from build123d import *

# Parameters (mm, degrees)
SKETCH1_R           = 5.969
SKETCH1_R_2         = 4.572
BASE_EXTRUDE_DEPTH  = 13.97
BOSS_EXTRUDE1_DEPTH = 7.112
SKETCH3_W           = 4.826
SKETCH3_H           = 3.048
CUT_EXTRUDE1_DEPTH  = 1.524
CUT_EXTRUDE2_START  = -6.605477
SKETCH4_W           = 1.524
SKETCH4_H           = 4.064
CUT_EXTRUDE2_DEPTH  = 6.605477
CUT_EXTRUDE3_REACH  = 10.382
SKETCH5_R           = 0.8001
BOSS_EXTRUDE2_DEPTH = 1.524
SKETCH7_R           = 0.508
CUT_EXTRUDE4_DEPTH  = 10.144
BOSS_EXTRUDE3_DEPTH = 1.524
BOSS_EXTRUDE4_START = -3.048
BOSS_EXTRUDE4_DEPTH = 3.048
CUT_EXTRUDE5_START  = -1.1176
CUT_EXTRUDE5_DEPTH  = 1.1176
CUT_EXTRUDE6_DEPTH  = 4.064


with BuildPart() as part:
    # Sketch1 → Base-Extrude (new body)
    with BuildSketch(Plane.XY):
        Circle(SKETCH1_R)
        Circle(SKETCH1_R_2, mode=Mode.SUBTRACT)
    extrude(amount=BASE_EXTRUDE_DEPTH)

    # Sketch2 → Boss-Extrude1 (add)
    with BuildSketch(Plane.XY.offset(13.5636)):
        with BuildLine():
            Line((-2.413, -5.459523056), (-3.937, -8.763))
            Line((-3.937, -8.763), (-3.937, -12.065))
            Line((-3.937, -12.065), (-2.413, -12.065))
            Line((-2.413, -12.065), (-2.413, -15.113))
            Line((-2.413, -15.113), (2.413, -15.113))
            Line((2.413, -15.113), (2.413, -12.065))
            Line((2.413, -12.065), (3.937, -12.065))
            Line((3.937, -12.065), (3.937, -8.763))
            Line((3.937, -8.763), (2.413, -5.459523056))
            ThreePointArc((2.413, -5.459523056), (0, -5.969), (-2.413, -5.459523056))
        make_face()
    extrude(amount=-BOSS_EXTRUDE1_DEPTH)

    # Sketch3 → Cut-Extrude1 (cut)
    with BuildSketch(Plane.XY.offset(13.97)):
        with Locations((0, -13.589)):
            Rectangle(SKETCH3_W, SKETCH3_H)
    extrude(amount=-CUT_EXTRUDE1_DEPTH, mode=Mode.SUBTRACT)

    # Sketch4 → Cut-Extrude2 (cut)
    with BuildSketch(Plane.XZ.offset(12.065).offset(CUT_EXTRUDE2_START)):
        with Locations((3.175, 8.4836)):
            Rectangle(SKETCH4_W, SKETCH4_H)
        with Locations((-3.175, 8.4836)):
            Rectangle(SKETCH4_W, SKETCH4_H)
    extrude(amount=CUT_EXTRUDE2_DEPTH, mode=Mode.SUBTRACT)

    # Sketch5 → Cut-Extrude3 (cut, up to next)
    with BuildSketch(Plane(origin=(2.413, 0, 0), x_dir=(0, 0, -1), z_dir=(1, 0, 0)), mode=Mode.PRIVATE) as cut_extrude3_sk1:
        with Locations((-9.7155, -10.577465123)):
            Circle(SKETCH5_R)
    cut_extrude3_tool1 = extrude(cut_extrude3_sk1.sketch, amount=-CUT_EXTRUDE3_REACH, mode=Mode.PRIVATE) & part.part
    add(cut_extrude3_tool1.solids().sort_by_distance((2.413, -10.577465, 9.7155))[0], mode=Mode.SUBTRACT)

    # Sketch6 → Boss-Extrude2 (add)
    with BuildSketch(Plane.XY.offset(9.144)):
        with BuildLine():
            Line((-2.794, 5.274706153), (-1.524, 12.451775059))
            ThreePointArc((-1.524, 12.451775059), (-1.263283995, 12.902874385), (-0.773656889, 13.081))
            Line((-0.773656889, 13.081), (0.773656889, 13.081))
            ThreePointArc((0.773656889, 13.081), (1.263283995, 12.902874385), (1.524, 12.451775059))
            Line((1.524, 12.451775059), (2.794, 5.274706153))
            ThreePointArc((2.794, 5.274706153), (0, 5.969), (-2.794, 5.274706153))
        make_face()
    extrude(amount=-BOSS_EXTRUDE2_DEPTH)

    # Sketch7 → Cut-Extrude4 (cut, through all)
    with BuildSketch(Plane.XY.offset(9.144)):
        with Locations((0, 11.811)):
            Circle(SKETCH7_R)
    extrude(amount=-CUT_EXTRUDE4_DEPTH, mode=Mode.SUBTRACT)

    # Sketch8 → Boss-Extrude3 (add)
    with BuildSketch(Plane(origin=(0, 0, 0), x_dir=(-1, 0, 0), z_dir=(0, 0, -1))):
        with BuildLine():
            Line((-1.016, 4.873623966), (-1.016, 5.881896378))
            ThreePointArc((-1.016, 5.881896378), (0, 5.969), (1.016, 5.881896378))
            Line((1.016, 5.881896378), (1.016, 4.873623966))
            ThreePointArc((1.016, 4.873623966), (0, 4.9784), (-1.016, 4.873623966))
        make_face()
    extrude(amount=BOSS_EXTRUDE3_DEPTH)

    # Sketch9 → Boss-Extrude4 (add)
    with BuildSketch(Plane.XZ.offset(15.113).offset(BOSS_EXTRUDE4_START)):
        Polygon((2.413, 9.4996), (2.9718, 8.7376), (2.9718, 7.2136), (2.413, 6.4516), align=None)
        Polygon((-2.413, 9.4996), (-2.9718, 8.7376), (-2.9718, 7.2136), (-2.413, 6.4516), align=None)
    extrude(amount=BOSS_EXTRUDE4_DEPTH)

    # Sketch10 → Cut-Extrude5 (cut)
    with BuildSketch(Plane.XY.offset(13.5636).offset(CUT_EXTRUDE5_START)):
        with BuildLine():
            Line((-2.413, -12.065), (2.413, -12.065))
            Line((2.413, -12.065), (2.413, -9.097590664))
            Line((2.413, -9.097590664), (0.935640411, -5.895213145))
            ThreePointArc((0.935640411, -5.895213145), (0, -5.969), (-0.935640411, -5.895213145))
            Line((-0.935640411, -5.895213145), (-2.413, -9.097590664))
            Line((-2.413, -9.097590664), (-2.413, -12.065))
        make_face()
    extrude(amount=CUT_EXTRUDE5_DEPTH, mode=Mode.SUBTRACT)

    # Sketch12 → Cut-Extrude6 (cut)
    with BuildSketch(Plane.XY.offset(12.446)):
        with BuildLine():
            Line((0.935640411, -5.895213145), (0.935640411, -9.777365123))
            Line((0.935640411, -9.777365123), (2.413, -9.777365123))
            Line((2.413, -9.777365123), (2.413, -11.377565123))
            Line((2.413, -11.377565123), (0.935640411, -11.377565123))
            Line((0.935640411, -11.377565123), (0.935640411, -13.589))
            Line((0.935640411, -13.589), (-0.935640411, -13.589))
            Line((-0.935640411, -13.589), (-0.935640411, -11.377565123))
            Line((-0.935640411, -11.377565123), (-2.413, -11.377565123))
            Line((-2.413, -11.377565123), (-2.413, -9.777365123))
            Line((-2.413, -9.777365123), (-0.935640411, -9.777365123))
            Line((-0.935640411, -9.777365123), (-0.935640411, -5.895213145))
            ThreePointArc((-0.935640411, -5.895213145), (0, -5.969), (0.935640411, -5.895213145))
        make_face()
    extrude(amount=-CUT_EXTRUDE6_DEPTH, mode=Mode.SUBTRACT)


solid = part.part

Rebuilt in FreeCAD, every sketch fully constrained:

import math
import FreeCAD as App
import Part
import Sketcher
Q = App.Units.Quantity

doc = App.newDocument("Part")
params = doc.addObject("Spreadsheet::Sheet", "Params")
for row, (alias, value) in enumerate([
    ("sketch1_diameter", "0.47 in"),
    ("sketch1_diameter2", "0.36 in"),
    ("pad1_length", "0.55 in"),
    ("sketch2_radius", "0.235 in"),
    ("sketch2_width", "0.06 in"),
    ("sketch2_width2", "0.19 in"),
    ("sketch2_height", "0.13 in"),
    ("sketch2_height2", "0.12 in"),
    ("pad2_length", "0.28 in"),
    ("sketch3_width", "0.19 in"),
    ("sketch3_height", "0.12 in"),
    ("pocket1_length", "0.06 in"),
    ("sketch4_width", "0.06 in"),
    ("sketch4_height", "0.16 in"),
    ("pocket2_length", "6.605477 mm"),
    ("sketch5_diameter", "0.063 in"),
    ("sketch6_radius", "0.03 in"),
    ("sketch6_radius2", "0.235 in"),
    ("pad3_length", "0.06 in"),
    ("sketch7_diameter", "0.04 in"),
    ("sketch8_radius", "0.196 in"),
    ("sketch8_radius2", "0.235 in"),
    ("pad4_length", "0.06 in"),
    ("sketch9_height", "0.12 in"),
    ("sketch9_height2", "0.06 in"),
    ("pad5_length", "0.12 in"),
    ("sketch10_radius", "0.235 in"),
    ("sketch10_width", "0.19 in"),
    ("pocket5_length", "0.044 in"),
    ("sketch11_radius", "0.235 in"),
    ("sketch11_height", "0.063 in"),
    ("pocket6_length", "0.16 in"),
], start=1):
    params.set(f"A{row}", alias)
    params.set(f"B{row}", "=" + value)
    params.setAlias(f"B{row}", alias)

body = doc.addObject("PartDesign::Body", "Body")

sketch1 = body.newObject("Sketcher::SketchObject", "Sketch")
sketch1.AttachmentSupport = (doc.getObject("XY_Plane"), [""])
sketch1.MapMode = "FlatFace"
sketch1.addGeometry(Part.Circle(App.Vector(0, 0, 0), App.Vector(0, 0, 1), 5.969), False)
sketch1.addGeometry(Part.Circle(App.Vector(0, 0, 0), App.Vector(0, 0, 1), 4.572), False)
sketch1.addConstraint(Sketcher.Constraint("Coincident", 0, 3, -1, 1))
sketch1.addConstraint(Sketcher.Constraint("Coincident", 1, 3, -1, 1))
sketch1.addConstraint(Sketcher.Constraint("Diameter", 0, Q("0.47 in")))
sketch1.addConstraint(Sketcher.Constraint("Diameter", 1, Q("0.36 in")))
sketch1.setExpression("Constraints[2]", "Params.sketch1_diameter")
sketch1.setExpression("Constraints[3]", "Params.sketch1_diameter2")
pad1 = body.newObject("PartDesign::Pad", "Pad")
pad1.Profile = sketch1
pad1.setExpression("Length", "Params.pad1_length")

sketch2 = body.newObject("Sketcher::SketchObject", "Sketch001")
sketch2.AttachmentSupport = (doc.getObject("XY_Plane"), [""])
sketch2.MapMode = "FlatFace"
sketch2.AttachmentOffset = App.Placement(App.Vector(0, 0, 0.534 * 25.4), App.Rotation())
sketch2.addGeometry(Part.LineSegment(App.Vector(-2.413, -5.459523, 0), App.Vector(-3.937, -8.763, 0)), False)
sketch2.addGeometry(Part.LineSegment(App.Vector(-3.937, -8.763, 0), App.Vector(-3.937, -12.065, 0)), False)
sketch2.addGeometry(Part.LineSegment(App.Vector(-3.937, -12.065, 0), App.Vector(-2.413, -12.065, 0)), False)
sketch2.addGeometry(Part.LineSegment(App.Vector(-2.413, -12.065, 0), App.Vector(-2.413, -15.113, 0)), False)
sketch2.addGeometry(Part.LineSegment(App.Vector(-2.413, -15.113, 0), App.Vector(2.413, -15.113, 0)), False)
sketch2.addGeometry(Part.LineSegment(App.Vector(2.413, -15.113, 0), App.Vector(2.413, -12.065, 0)), False)
sketch2.addGeometry(Part.LineSegment(App.Vector(2.413, -12.065, 0), App.Vector(3.937, -12.065, 0)), False)
sketch2.addGeometry(Part.LineSegment(App.Vector(3.937, -12.065, 0), App.Vector(3.937, -8.763, 0)), False)
sketch2.addGeometry(Part.LineSegment(App.Vector(3.937, -8.763, 0), App.Vector(2.413, -5.459523, 0)), False)
sketch2.addGeometry(Part.ArcOfCircle(Part.Circle(App.Vector(0, 0, 0), App.Vector(0, 0, 1), 5.969), math.radians(-113.84447), math.radians(-66.15553)), False)
sketch2.addConstraint(Sketcher.Constraint("Coincident", 0, 2, 1, 1))
sketch2.addConstraint(Sketcher.Constraint("Coincident", 1, 2, 2, 1))
sketch2.addConstraint(Sketcher.Constraint("Coincident", 2, 2, 3, 1))
sketch2.addConstraint(Sketcher.Constraint("Coincident", 3, 2, 4, 1))
sketch2.addConstraint(Sketcher.Constraint("Coincident", 4, 2, 5, 1))
sketch2.addConstraint(Sketcher.Constraint("Coincident", 5, 2, 6, 1))
sketch2.addConstraint(Sketcher.Constraint("Coincident", 6, 2, 7, 1))
sketch2.addConstraint(Sketcher.Constraint("Coincident", 7, 2, 8, 1))
sketch2.addConstraint(Sketcher.Constraint("Coincident", 8, 2, 9, 2))
sketch2.addConstraint(Sketcher.Constraint("Coincident", 9, 1, 0, 1))
sketch2.addConstraint(Sketcher.Constraint("Vertical", 1))
sketch2.addConstraint(Sketcher.Constraint("Horizontal", 2))
sketch2.addConstraint(Sketcher.Constraint("Vertical", 3))
sketch2.addConstraint(Sketcher.Constraint("Horizontal", 4))
sketch2.addConstraint(Sketcher.Constraint("Vertical", 5))
sketch2.addConstraint(Sketcher.Constraint("Horizontal", 6))
sketch2.addConstraint(Sketcher.Constraint("Vertical", 7))
sketch2.addConstraint(Sketcher.Constraint("Coincident", 9, 3, -1, 1))
sketch2.addConstraint(Sketcher.Constraint("Symmetric", 2, 2, 5, 2, -2))
sketch2.addConstraint(Sketcher.Constraint("Symmetric", 0, 2, 7, 2, -2))
sketch2.addConstraint(Sketcher.Constraint("Horizontal", 8, 2, 9, 1))
sketch2.addConstraint(Sketcher.Constraint("Vertical", 5, 2, 8, 2))
sketch2.addConstraint(Sketcher.Constraint("Radius", 9, Q("0.235 in")))
sketch2.addConstraint(Sketcher.Constraint("DistanceX", 2, 1, 2, 2, Q("0.06 in")))
sketch2.addConstraint(Sketcher.Constraint("DistanceX", 4, 1, 4, 2, Q("0.19 in")))
sketch2.addConstraint(Sketcher.Constraint("DistanceY", 1, 2, 1, 1, Q("0.13 in")))
sketch2.addConstraint(Sketcher.Constraint("DistanceY", 3, 2, 3, 1, Q("0.12 in")))
sketch2.addConstraint(Sketcher.Constraint("DistanceY", 0, 2, -1, 1, Q("0.345 in")))
sketch2.setExpression("Constraints[22]", "Params.sketch2_radius")
sketch2.setExpression("Constraints[23]", "Params.sketch2_width")
sketch2.setExpression("Constraints[24]", "Params.sketch2_width2")
sketch2.setExpression("Constraints[25]", "Params.sketch2_height")
sketch2.setExpression("Constraints[26]", "Params.sketch2_height2")
pad2 = body.newObject("PartDesign::Pad", "Pad001")
pad2.Profile = sketch2
pad2.setExpression("Length", "Params.pad2_length")
pad2.Reversed = True

sketch3 = body.newObject("Sketcher::SketchObject", "Sketch002")
sketch3.AttachmentSupport = (doc.getObject("XY_Plane"), [""])
sketch3.MapMode = "FlatFace"
sketch3.AttachmentOffset = App.Placement(App.Vector(0, 0, 0.55 * 25.4), App.Rotation())
sketch3.addGeometry(Part.LineSegment(App.Vector(-2.413, -12.065, 0), App.Vector(-2.413, -15.113, 0)), False)
sketch3.addGeometry(Part.LineSegment(App.Vector(-2.413, -15.113, 0), App.Vector(2.413, -15.113, 0)), False)
sketch3.addGeometry(Part.LineSegment(App.Vector(2.413, -15.113, 0), App.Vector(2.413, -12.065, 0)), False)
sketch3.addGeometry(Part.LineSegment(App.Vector(2.413, -12.065, 0), App.Vector(-2.413, -12.065, 0)), False)
sketch3.addConstraint(Sketcher.Constraint("Coincident", 0, 2, 1, 1))
sketch3.addConstraint(Sketcher.Constraint("Coincident", 1, 2, 2, 1))
sketch3.addConstraint(Sketcher.Constraint("Coincident", 2, 2, 3, 1))
sketch3.addConstraint(Sketcher.Constraint("Coincident", 3, 2, 0, 1))
sketch3.addConstraint(Sketcher.Constraint("Vertical", 0))
sketch3.addConstraint(Sketcher.Constraint("Horizontal", 1))
sketch3.addConstraint(Sketcher.Constraint("Vertical", 2))
sketch3.addConstraint(Sketcher.Constraint("Horizontal", 3))
sketch3.addConstraint(Sketcher.Constraint("DistanceX", 1, 1, 1, 2, Q("0.19 in")))
sketch3.addConstraint(Sketcher.Constraint("DistanceY", 0, 2, 0, 1, Q("0.12 in")))
sketch3.addConstraint(Sketcher.Constraint("DistanceX", 0, 2, -1, 1, Q("0.095 in")))
sketch3.addConstraint(Sketcher.Constraint("DistanceY", 0, 2, -1, 1, Q("0.595 in")))
sketch3.setExpression("Constraints[8]", "Params.sketch3_width")
sketch3.setExpression("Constraints[9]", "Params.sketch3_height")
pocket1 = body.newObject("PartDesign::Pocket", "Pocket")
pocket1.Profile = sketch3
pocket1.setExpression("Length", "Params.pocket1_length")

sketch4 = body.newObject("Sketcher::SketchObject", "Sketch003")
sketch4.AttachmentSupport = (doc.getObject("XZ_Plane"), [""])
sketch4.MapMode = "FlatFace"
sketch4.AttachmentOffset = App.Placement(App.Vector(0, 0, 5.459523), App.Rotation())
sketch4.addGeometry(Part.LineSegment(App.Vector(2.413, 10.5156, 0), App.Vector(2.413, 6.4516, 0)), False)
sketch4.addGeometry(Part.LineSegment(App.Vector(2.413, 6.4516, 0), App.Vector(3.937, 6.4516, 0)), False)
sketch4.addGeometry(Part.LineSegment(App.Vector(3.937, 6.4516, 0), App.Vector(3.937, 10.5156, 0)), False)
sketch4.addGeometry(Part.LineSegment(App.Vector(3.937, 10.5156, 0), App.Vector(2.413, 10.5156, 0)), False)
sketch4.addGeometry(Part.LineSegment(App.Vector(-3.937, 10.5156, 0), App.Vector(-3.937, 6.4516, 0)), False)
sketch4.addGeometry(Part.LineSegment(App.Vector(-3.937, 6.4516, 0), App.Vector(-2.413, 6.4516, 0)), False)
sketch4.addGeometry(Part.LineSegment(App.Vector(-2.413, 6.4516, 0), App.Vector(-2.413, 10.5156, 0)), False)
sketch4.addGeometry(Part.LineSegment(App.Vector(-2.413, 10.5156, 0), App.Vector(-3.937, 10.5156, 0)), False)
sketch4.addConstraint(Sketcher.Constraint("Coincident", 0, 2, 1, 1))
sketch4.addConstraint(Sketcher.Constraint("Coincident", 1, 2, 2, 1))
sketch4.addConstraint(Sketcher.Constraint("Coincident", 2, 2, 3, 1))
sketch4.addConstraint(Sketcher.Constraint("Coincident", 3, 2, 0, 1))
sketch4.addConstraint(Sketcher.Constraint("Coincident", 4, 2, 5, 1))
sketch4.addConstraint(Sketcher.Constraint("Coincident", 5, 2, 6, 1))
sketch4.addConstraint(Sketcher.Constraint("Coincident", 6, 2, 7, 1))
sketch4.addConstraint(Sketcher.Constraint("Coincident", 7, 2, 4, 1))
sketch4.addConstraint(Sketcher.Constraint("Vertical", 0))
sketch4.addConstraint(Sketcher.Constraint("Horizontal", 1))
sketch4.addConstraint(Sketcher.Constraint("Vertical", 2))
sketch4.addConstraint(Sketcher.Constraint("Horizontal", 3))
sketch4.addConstraint(Sketcher.Constraint("Vertical", 4))
sketch4.addConstraint(Sketcher.Constraint("Horizontal", 5))
sketch4.addConstraint(Sketcher.Constraint("Vertical", 6))
sketch4.addConstraint(Sketcher.Constraint("Horizontal", 7))
sketch4.addConstraint(Sketcher.Constraint("Symmetric", 1, 2, 4, 2, -2))
sketch4.addConstraint(Sketcher.Constraint("Symmetric", 3, 2, 6, 2, -2))
sketch4.addConstraint(Sketcher.Constraint("DistanceX", 1, 1, 1, 2, Q("0.06 in")))
sketch4.addConstraint(Sketcher.Constraint("DistanceY", 0, 2, 0, 1, Q("0.16 in")))
sketch4.addConstraint(Sketcher.Constraint("DistanceX", 4, 2, 0, 2, Q("0.25 in")))
sketch4.addConstraint(Sketcher.Constraint("DistanceY", -1, 1, 0, 2, Q("0.254 in")))
sketch4.setExpression("Constraints[18]", "Params.sketch4_width")
sketch4.setExpression("Constraints[19]", "Params.sketch4_height")
pocket2 = body.newObject("PartDesign::Pocket", "Pocket001")
pocket2.Profile = sketch4
pocket2.setExpression("Length", "Params.pocket2_length")
pocket2.Reversed = True

sketch5 = body.newObject("Sketcher::SketchObject", "Sketch004")
sketch5.AttachmentSupport = (doc.getObject("YZ_Plane"), [""])
sketch5.MapMode = "FlatFace"
sketch5.AttachmentOffset = App.Placement(App.Vector(0, 0, 0.095 * 25.4), App.Rotation())
sketch5.addGeometry(Part.Circle(App.Vector(-10.577465, 9.7155, 0), App.Vector(0, 0, 1), 0.8001), False)
sketch5.addConstraint(Sketcher.Constraint("Diameter", 0, Q("0.063 in")))
sketch5.addConstraint(Sketcher.Constraint("DistanceY", -1, 1, 0, 3, Q("0.3825 in")))
sketch5.addConstraint(Sketcher.Constraint("DistanceX", 0, 3, -1, 1, 10.577465))
sketch5.setExpression("Constraints[0]", "Params.sketch5_diameter")
pocket3 = body.newObject("PartDesign::Pocket", "Pocket002")
pocket3.Profile = sketch5
pocket3.Type = "UpToFirst"

sketch6 = body.newObject("Sketcher::SketchObject", "Sketch005")
sketch6.AttachmentSupport = (doc.getObject("XY_Plane"), [""])
sketch6.MapMode = "FlatFace"
sketch6.AttachmentOffset = App.Placement(App.Vector(0, 0, 0.36 * 25.4), App.Rotation())
sketch6.addGeometry(Part.LineSegment(App.Vector(-1.524, 12.451775, 0), App.Vector(-2.794, 5.274706, 0)), False)
sketch6.addGeometry(Part.ArcOfCircle(Part.Circle(App.Vector(0, 0, 0), App.Vector(0, 0, 1), 5.969), math.radians(62.089932), math.radians(117.910068)), False)
sketch6.addGeometry(Part.LineSegment(App.Vector(2.794, 5.274706, 0), App.Vector(1.524, 12.451775, 0)), False)
sketch6.addGeometry(Part.ArcOfCircle(Part.Circle(App.Vector(0.773657, 12.319, 0), App.Vector(0, 0, 1), 0.762), math.radians(10.034753), math.radians(90)), False)
sketch6.addGeometry(Part.LineSegment(App.Vector(0.773657, 13.081, 0), App.Vector(-0.773657, 13.081, 0)), False)
sketch6.addGeometry(Part.ArcOfCircle(Part.Circle(App.Vector(-0.773657, 12.319, 0), App.Vector(0, 0, 1), 0.762), math.radians(90), math.radians(169.965247)), False)
sketch6.addConstraint(Sketcher.Constraint("Coincident", 0, 2, 1, 2))
sketch6.addConstraint(Sketcher.Constraint("Coincident", 1, 1, 2, 1))
sketch6.addConstraint(Sketcher.Constraint("Tangent", 2, 2, 3, 1))
sketch6.addConstraint(Sketcher.Constraint("Tangent", 3, 2, 4, 1))
sketch6.addConstraint(Sketcher.Constraint("Tangent", 4, 2, 5, 1))
sketch6.addConstraint(Sketcher.Constraint("Tangent", 5, 2, 0, 1))
sketch6.addConstraint(Sketcher.Constraint("Horizontal", 4))
sketch6.addConstraint(Sketcher.Constraint("Coincident", 1, 3, -1, 1))
sketch6.addConstraint(Sketcher.Constraint("Equal", 3, 5))
sketch6.addConstraint(Sketcher.Constraint("Symmetric", 2, 2, 5, 2, -2))
sketch6.addConstraint(Sketcher.Constraint("Radius", 3, Q("0.03 in")))
sketch6.addConstraint(Sketcher.Constraint("Radius", 1, Q("0.235 in")))
sketch6.addConstraint(Sketcher.Constraint("DistanceX", 0, 2, -1, 1, Q("0.11 in")))
sketch6.addConstraint(Sketcher.Constraint("DistanceX", -1, 1, 2, 2, Q("0.06 in")))
sketch6.addConstraint(Sketcher.Constraint("DistanceY", -1, 1, 3, 3, Q("0.485 in")))
sketch6.setExpression("Constraints[10]", "Params.sketch6_radius")
sketch6.setExpression("Constraints[11]", "Params.sketch6_radius2")
pad3 = body.newObject("PartDesign::Pad", "Pad002")
pad3.Profile = sketch6
pad3.setExpression("Length", "Params.pad3_length")
pad3.Reversed = True

sketch7 = body.newObject("Sketcher::SketchObject", "Sketch006")
sketch7.AttachmentSupport = (doc.getObject("XY_Plane"), [""])
sketch7.MapMode = "FlatFace"
sketch7.AttachmentOffset = App.Placement(App.Vector(0, 0, 0.36 * 25.4), App.Rotation())
sketch7.addGeometry(Part.Circle(App.Vector(0, 11.811, 0), App.Vector(0, 0, 1), 0.508), False)
sketch7.addConstraint(Sketcher.Constraint("PointOnObject", 0, 3, -2))
sketch7.addConstraint(Sketcher.Constraint("Diameter", 0, Q("0.04 in")))
sketch7.addConstraint(Sketcher.Constraint("DistanceY", -1, 1, 0, 3, Q("0.465 in")))
sketch7.setExpression("Constraints[1]", "Params.sketch7_diameter")
pocket4 = body.newObject("PartDesign::Pocket", "Pocket003")
pocket4.Profile = sketch7
pocket4.Type = "ThroughAll"

sketch8 = body.newObject("Sketcher::SketchObject", "Sketch007")
sketch8.AttachmentSupport = (doc.getObject("XY_Plane"), [""])
sketch8.MapMode = "FlatFace"
sketch8.addGeometry(Part.LineSegment(App.Vector(1.016, 5.881896, 0), App.Vector(1.016, 4.873624, 0)), False)
sketch8.addGeometry(Part.ArcOfCircle(Part.Circle(App.Vector(0, 0, 0), App.Vector(0, 0, 1), 4.9784), math.radians(78.224256), math.radians(101.775744)), False)
sketch8.addGeometry(Part.LineSegment(App.Vector(-1.016, 4.873624, 0), App.Vector(-1.016, 5.881896, 0)), False)
sketch8.addGeometry(Part.ArcOfCircle(Part.Circle(App.Vector(0, 0, 0), App.Vector(0, 0, 1), 5.969), math.radians(80.19981), math.radians(99.80019)), False)
sketch8.addConstraint(Sketcher.Constraint("Coincident", 0, 2, 1, 1))
sketch8.addConstraint(Sketcher.Constraint("Coincident", 1, 2, 2, 1))
sketch8.addConstraint(Sketcher.Constraint("Coincident", 2, 2, 3, 2))
sketch8.addConstraint(Sketcher.Constraint("Coincident", 3, 1, 0, 1))
sketch8.addConstraint(Sketcher.Constraint("Vertical", 0))
sketch8.addConstraint(Sketcher.Constraint("Vertical", 2))
sketch8.addConstraint(Sketcher.Constraint("Coincident", 1, 3, -1, 1))
sketch8.addConstraint(Sketcher.Constraint("Coincident", 3, 3, -1, 1))
sketch8.addConstraint(Sketcher.Constraint("Horizontal", 0, 2, 1, 2))
sketch8.addConstraint(Sketcher.Constraint("Radius", 1, Q("0.196 in")))
sketch8.addConstraint(Sketcher.Constraint("Radius", 3, Q("0.235 in")))
sketch8.addConstraint(Sketcher.Constraint("DistanceX", -1, 1, 0, 2, Q("0.04 in")))
sketch8.setExpression("Constraints[9]", "Params.sketch8_radius")
sketch8.setExpression("Constraints[10]", "Params.sketch8_radius2")
pad4 = body.newObject("PartDesign::Pad", "Pad003")
pad4.Profile = sketch8
pad4.setExpression("Length", "Params.pad4_length")
pad4.Reversed = True

sketch9 = body.newObject("Sketcher::SketchObject", "Sketch008")
sketch9.AttachmentSupport = (doc.getObject("XZ_Plane"), [""])
sketch9.MapMode = "FlatFace"
sketch9.AttachmentOffset = App.Placement(App.Vector(0, 0, 0.475 * 25.4), App.Rotation())
sketch9.addGeometry(Part.LineSegment(App.Vector(2.9718, 8.7376, 0), App.Vector(2.413, 9.4996, 0)), False)
sketch9.addGeometry(Part.LineSegment(App.Vector(2.413, 9.4996, 0), App.Vector(2.413, 6.4516, 0)), False)
sketch9.addGeometry(Part.LineSegment(App.Vector(2.413, 6.4516, 0), App.Vector(2.9718, 7.2136, 0)), False)
sketch9.addGeometry(Part.LineSegment(App.Vector(2.9718, 7.2136, 0), App.Vector(2.9718, 8.7376, 0)), False)
sketch9.addGeometry(Part.LineSegment(App.Vector(-2.413, 9.4996, 0), App.Vector(-2.9718, 8.7376, 0)), False)
sketch9.addGeometry(Part.LineSegment(App.Vector(-2.9718, 8.7376, 0), App.Vector(-2.9718, 7.2136, 0)), False)
sketch9.addGeometry(Part.LineSegment(App.Vector(-2.9718, 7.2136, 0), App.Vector(-2.413, 6.4516, 0)), False)
sketch9.addGeometry(Part.LineSegment(App.Vector(-2.413, 6.4516, 0), App.Vector(-2.413, 9.4996, 0)), False)
sketch9.addConstraint(Sketcher.Constraint("Coincident", 0, 2, 1, 1))
sketch9.addConstraint(Sketcher.Constraint("Coincident", 1, 2, 2, 1))
sketch9.addConstraint(Sketcher.Constraint("Coincident", 2, 2, 3, 1))
sketch9.addConstraint(Sketcher.Constraint("Coincident", 3, 2, 0, 1))
sketch9.addConstraint(Sketcher.Constraint("Coincident", 4, 2, 5, 1))
sketch9.addConstraint(Sketcher.Constraint("Coincident", 5, 2, 6, 1))
sketch9.addConstraint(Sketcher.Constraint("Coincident", 6, 2, 7, 1))
sketch9.addConstraint(Sketcher.Constraint("Coincident", 7, 2, 4, 1))
sketch9.addConstraint(Sketcher.Constraint("Vertical", 1))
sketch9.addConstraint(Sketcher.Constraint("Vertical", 3))
sketch9.addConstraint(Sketcher.Constraint("Vertical", 5))
sketch9.addConstraint(Sketcher.Constraint("Vertical", 7))
sketch9.addConstraint(Sketcher.Constraint("Symmetric", 3, 2, 4, 2, -2))
sketch9.addConstraint(Sketcher.Constraint("Symmetric", 1, 2, 6, 2, -2))
sketch9.addConstraint(Sketcher.Constraint("Parallel", 2, 4))
sketch9.addConstraint(Sketcher.Constraint("Parallel", 0, 6))
sketch9.addConstraint(Sketcher.Constraint("Horizontal", 2, 2, 5, 2))
sketch9.addConstraint(Sketcher.Constraint("DistanceY", 1, 2, 1, 1, Q("0.12 in")))
sketch9.addConstraint(Sketcher.Constraint("DistanceY", 3, 1, 3, 2, Q("0.06 in")))
sketch9.addConstraint(Sketcher.Constraint("DistanceX", 6, 2, 1, 2, Q("0.19 in")))
sketch9.addConstraint(Sketcher.Constraint("DistanceY", -1, 1, 0, 2, Q("0.374 in")))
sketch9.addConstraint(Sketcher.Constraint("DistanceX", -1, 1, 2, 2, Q("0.117 in")))
sketch9.setExpression("Constraints[17]", "Params.sketch9_height")
sketch9.setExpression("Constraints[18]", "Params.sketch9_height2")
pad5 = body.newObject("PartDesign::Pad", "Pad004")
pad5.Profile = sketch9
pad5.setExpression("Length", "Params.pad5_length")

sketch10 = body.newObject("Sketcher::SketchObject", "Sketch009")
sketch10.AttachmentSupport = (doc.getObject("XY_Plane"), [""])
sketch10.MapMode = "FlatFace"
sketch10.AttachmentOffset = App.Placement(App.Vector(0, 0, 0.49 * 25.4), App.Rotation())
sketch10.addGeometry(Part.LineSegment(App.Vector(-2.413, -12.065, 0), App.Vector(2.413, -12.065, 0)), False)
sketch10.addGeometry(Part.LineSegment(App.Vector(2.413, -12.065, 0), App.Vector(2.413, -9.097591, 0)), False)
sketch10.addGeometry(Part.LineSegment(App.Vector(2.413, -9.097591, 0), App.Vector(0.93564, -5.895213, 0)), False)
sketch10.addGeometry(Part.ArcOfCircle(Part.Circle(App.Vector(0, 0, 0), App.Vector(0, 0, 1), 5.969), math.radians(-99.018301), math.radians(-80.981699)), False)
sketch10.addGeometry(Part.LineSegment(App.Vector(-0.93564, -5.895213, 0), App.Vector(-2.413, -9.097591, 0)), False)
sketch10.addGeometry(Part.LineSegment(App.Vector(-2.413, -9.097591, 0), App.Vector(-2.413, -12.065, 0)), False)
sketch10.addConstraint(Sketcher.Constraint("Coincident", 0, 2, 1, 1))
sketch10.addConstraint(Sketcher.Constraint("Coincident", 1, 2, 2, 1))
sketch10.addConstraint(Sketcher.Constraint("Coincident", 2, 2, 3, 2))
sketch10.addConstraint(Sketcher.Constraint("Coincident", 3, 1, 4, 1))
sketch10.addConstraint(Sketcher.Constraint("Coincident", 4, 2, 5, 1))
sketch10.addConstraint(Sketcher.Constraint("Coincident", 5, 2, 0, 1))
sketch10.addConstraint(Sketcher.Constraint("Horizontal", 0))
sketch10.addConstraint(Sketcher.Constraint("Vertical", 1))
sketch10.addConstraint(Sketcher.Constraint("Vertical", 5))
sketch10.addConstraint(Sketcher.Constraint("Coincident", 3, 3, -1, 1))
sketch10.addConstraint(Sketcher.Constraint("Symmetric", 1, 2, 4, 2, -2))
sketch10.addConstraint(Sketcher.Constraint("Horizontal", 2, 2, 3, 1))
sketch10.addConstraint(Sketcher.Constraint("Radius", 3, Q("0.235 in")))
sketch10.addConstraint(Sketcher.Constraint("DistanceX", 0, 1, 0, 2, Q("0.19 in")))
sketch10.addConstraint(Sketcher.Constraint("DistanceY", 0, 2, -1, 1, Q("0.475 in")))
sketch10.addConstraint(Sketcher.Constraint("DistanceY", 1, 1, 1, 2, 2.967409))
sketch10.addConstraint(Sketcher.Constraint("Distance", 2, 3.526728))
sketch10.setExpression("Constraints[12]", "Params.sketch10_radius")
sketch10.setExpression("Constraints[13]", "Params.sketch10_width")
pocket5 = body.newObject("PartDesign::Pocket", "Pocket004")
pocket5.Profile = sketch10
pocket5.setExpression("Length", "Params.pocket5_length")
pocket5.Reversed = True

sketch11 = body.newObject("Sketcher::SketchObject", "Sketch010")
sketch11.AttachmentSupport = (doc.getObject("XY_Plane"), [""])
sketch11.MapMode = "FlatFace"
sketch11.AttachmentOffset = App.Placement(App.Vector(0, 0, 0.49 * 25.4), App.Rotation())
sketch11.addGeometry(Part.LineSegment(App.Vector(0.93564, -9.777365, 0), App.Vector(0.93564, -5.895213, 0)), False)
sketch11.addGeometry(Part.ArcOfCircle(Part.Circle(App.Vector(0, 0, 0), App.Vector(0, 0, 1), 5.969), math.radians(-99.018301), math.radians(-80.981699)), False)
sketch11.addGeometry(Part.LineSegment(App.Vector(-0.93564, -5.895213, 0), App.Vector(-0.93564, -9.777365, 0)), False)
sketch11.addGeometry(Part.LineSegment(App.Vector(-0.93564, -9.777365, 0), App.Vector(-2.413, -9.777365, 0)), False)
sketch11.addGeometry(Part.LineSegment(App.Vector(-2.413, -9.777365, 0), App.Vector(-2.413, -11.377565, 0)), False)
sketch11.addGeometry(Part.LineSegment(App.Vector(-2.413, -11.377565, 0), App.Vector(-0.93564, -11.377565, 0)), False)
sketch11.addGeometry(Part.LineSegment(App.Vector(-0.93564, -11.377565, 0), App.Vector(-0.93564, -13.589, 0)), False)
sketch11.addGeometry(Part.LineSegment(App.Vector(-0.93564, -13.589, 0), App.Vector(0.93564, -13.589, 0)), False)
sketch11.addGeometry(Part.LineSegment(App.Vector(0.93564, -13.589, 0), App.Vector(0.93564, -11.377565, 0)), False)
sketch11.addGeometry(Part.LineSegment(App.Vector(0.93564, -11.377565, 0), App.Vector(2.413, -11.377565, 0)), False)
sketch11.addGeometry(Part.LineSegment(App.Vector(2.413, -11.377565, 0), App.Vector(2.413, -9.777365, 0)), False)
sketch11.addGeometry(Part.LineSegment(App.Vector(2.413, -9.777365, 0), App.Vector(0.93564, -9.777365, 0)), False)
sketch11.addConstraint(Sketcher.Constraint("Coincident", 0, 2, 1, 2))
sketch11.addConstraint(Sketcher.Constraint("Coincident", 1, 1, 2, 1))
sketch11.addConstraint(Sketcher.Constraint("Coincident", 2, 2, 3, 1))
sketch11.addConstraint(Sketcher.Constraint("Coincident", 3, 2, 4, 1))
sketch11.addConstraint(Sketcher.Constraint("Coincident", 4, 2, 5, 1))
sketch11.addConstraint(Sketcher.Constraint("Coincident", 5, 2, 6, 1))
sketch11.addConstraint(Sketcher.Constraint("Coincident", 6, 2, 7, 1))
sketch11.addConstraint(Sketcher.Constraint("Coincident", 7, 2, 8, 1))
sketch11.addConstraint(Sketcher.Constraint("Coincident", 8, 2, 9, 1))
sketch11.addConstraint(Sketcher.Constraint("Coincident", 9, 2, 10, 1))
sketch11.addConstraint(Sketcher.Constraint("Coincident", 10, 2, 11, 1))
sketch11.addConstraint(Sketcher.Constraint("Coincident", 11, 2, 0, 1))
sketch11.addConstraint(Sketcher.Constraint("Vertical", 0))
sketch11.addConstraint(Sketcher.Constraint("Vertical", 2))
sketch11.addConstraint(Sketcher.Constraint("Horizontal", 3))
sketch11.addConstraint(Sketcher.Constraint("Vertical", 4))
sketch11.addConstraint(Sketcher.Constraint("Horizontal", 5))
sketch11.addConstraint(Sketcher.Constraint("Vertical", 6))
sketch11.addConstraint(Sketcher.Constraint("Horizontal", 7))
sketch11.addConstraint(Sketcher.Constraint("Vertical", 8))
sketch11.addConstraint(Sketcher.Constraint("Horizontal", 9))
sketch11.addConstraint(Sketcher.Constraint("Vertical", 10))
sketch11.addConstraint(Sketcher.Constraint("Horizontal", 11))
sketch11.addConstraint(Sketcher.Constraint("Coincident", 1, 3, -1, 1))
sketch11.addConstraint(Sketcher.Constraint("Symmetric", 5, 2, 8, 2, -2))
sketch11.addConstraint(Sketcher.Constraint("Symmetric", 3, 2, 10, 2, -2))
sketch11.addConstraint(Sketcher.Constraint("Horizontal", 0, 2, 1, 1))
sketch11.addConstraint(Sketcher.Constraint("Vertical", 2, 2, 5, 2))
sketch11.addConstraint(Sketcher.Constraint("Radius", 1, Q("0.235 in")))
sketch11.addConstraint(Sketcher.Constraint("DistanceY", 4, 2, 4, 1, Q("0.063 in")))
sketch11.addConstraint(Sketcher.Constraint("DistanceX", 3, 2, -1, 1, Q("0.095 in")))
sketch11.addConstraint(Sketcher.Constraint("DistanceY", 6, 2, -1, 1, Q("0.535 in")))
sketch11.addConstraint(Sketcher.Constraint("DistanceX", 3, 2, 3, 1, 1.47736))
sketch11.addConstraint(Sketcher.Constraint("DistanceY", 0, 1, 0, 2, 3.882152))
sketch11.setExpression("Constraints[28]", "Params.sketch11_radius")
sketch11.setExpression("Constraints[29]", "Params.sketch11_height")
pocket6 = body.newObject("PartDesign::Pocket", "Pocket005")
pocket6.Profile = sketch11
pocket6.setExpression("Length", "Params.pocket6_length")

doc.recompute()
